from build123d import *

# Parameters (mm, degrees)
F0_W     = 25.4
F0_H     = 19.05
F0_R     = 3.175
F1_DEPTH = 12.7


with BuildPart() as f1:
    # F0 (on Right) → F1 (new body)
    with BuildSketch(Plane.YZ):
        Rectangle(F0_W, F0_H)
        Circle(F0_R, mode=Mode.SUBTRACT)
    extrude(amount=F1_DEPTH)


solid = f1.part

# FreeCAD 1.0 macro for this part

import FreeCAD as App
import Part
import Sketcher

V = App.Vector
Q = App.Units.Quantity


def add_polygon(sketch, points):
    """Adds a closed chain of lines whose ends are joined by coincident constraints."""
    first, n = sketch.GeometryCount, len(points)
    for a, b in zip(points, points[1:] + points[:1]):
        sketch.addGeometry(Part.LineSegment(App.Vector(*a, 0), App.Vector(*b, 0)), False)
    for i in range(n):
        sketch.addConstraint(Sketcher.Constraint("Coincident", first + i, 2, first + (i + 1) % n, 1))

doc = App.newDocument("Part")
body = doc.addObject("PartDesign::Body", "Body")

# Sketch on YZ plane
sketch1 = body.newObject("Sketcher::SketchObject", "Sketch")
sketch1.AttachmentSupport = (doc.getObject("YZ_Plane"), [""])
sketch1.MapMode = "FlatFace"
add_polygon(sketch1, [(-12.7, 9.525), (-12.7, -9.525), (12.7, -9.525), (12.7, 9.525)])  # lines 0-3
sketch1.addGeometry(Part.Circle(V(0, 0, 0), V(0, 0, 1), 3.175), False)  # 4
sketch1.addConstraint([
    Sketcher.Constraint("Vertical", 0),
    Sketcher.Constraint("Horizontal", 1),
    Sketcher.Constraint("Vertical", 2),
    Sketcher.Constraint("Horizontal", 3),
    Sketcher.Constraint("Coincident", 4, 3, -1, 1),
    Sketcher.Constraint("Symmetric", 0, 2, 2, 2, -1, 1),
    Sketcher.Constraint("Diameter", 4, Q("0.25 in")),
    Sketcher.Constraint("DistanceX", 1, 1, 1, 2, Q("1 in")),
    Sketcher.Constraint("DistanceY", 0, 2, 0, 1, Q("0.75 in")),
])
pad1 = body.newObject("PartDesign::Pad", "Pad")
pad1.Profile = sketch1
pad1.Length = Q("0.5 in")

doc.recompute()
